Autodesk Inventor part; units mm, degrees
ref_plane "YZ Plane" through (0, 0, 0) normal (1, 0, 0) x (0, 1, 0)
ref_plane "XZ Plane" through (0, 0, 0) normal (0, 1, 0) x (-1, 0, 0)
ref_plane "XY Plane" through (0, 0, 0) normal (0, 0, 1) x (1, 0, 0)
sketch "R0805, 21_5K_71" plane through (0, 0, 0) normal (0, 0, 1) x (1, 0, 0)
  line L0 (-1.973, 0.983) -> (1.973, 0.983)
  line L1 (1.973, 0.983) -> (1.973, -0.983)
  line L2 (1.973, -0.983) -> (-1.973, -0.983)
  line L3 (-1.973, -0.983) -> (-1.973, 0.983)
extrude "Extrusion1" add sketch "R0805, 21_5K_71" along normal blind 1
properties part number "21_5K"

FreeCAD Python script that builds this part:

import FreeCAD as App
import Part
import Sketcher
from FreeCAD import Vector


def add_polygon(sketch, points):
    """Adds a closed chain of lines whose ends are joined by coincident constraints."""
    first, n = sketch.GeometryCount, len(points)
    for a, b in zip(points, points[1:] + points[:1]):
        sketch.addGeometry(Part.LineSegment(App.Vector(*a, 0), App.Vector(*b, 0)), False)
    for i in range(n):
        sketch.addConstraint(Sketcher.Constraint("Coincident", first + i, 2, first + (i + 1) % n, 1))

doc = App.newDocument("Part")
body = doc.addObject("PartDesign::Body", "Body")

# Sketch on XY plane
sketch1 = doc.addObject("Sketcher::SketchObject", "Sketch")
body.addObject(sketch1)
sketch1.AttachmentSupport = (doc.XY_Plane, [""])
sketch1.MapMode = "FlatFace"
add_polygon(sketch1, [(2, 1), (-2, 1), (-2, -1), (2, -1)])  # lines 0-3
sketch1.addConstraint(Sketcher.Constraint("Horizontal", 0))
sketch1.addConstraint(Sketcher.Constraint("Vertical", 1))
sketch1.addConstraint(Sketcher.Constraint("Horizontal", 2))
sketch1.addConstraint(Sketcher.Constraint("Vertical", 3))
sketch1.addConstraint(Sketcher.Constraint("Symmetric", 0, 2, 2, 2, -1, 1))
sketch1.addConstraint(Sketcher.Constraint("DistanceX", 0, 2, 0, 1, 3.946))
sketch1.addConstraint(Sketcher.Constraint("DistanceY", 1, 2, 1, 1, 1.966))
pad1 = doc.addObject("PartDesign::Pad", "Pad")
body.addObject(pad1)
pad1.Profile = sketch1
pad1.Length = 1

doc.recompute()
